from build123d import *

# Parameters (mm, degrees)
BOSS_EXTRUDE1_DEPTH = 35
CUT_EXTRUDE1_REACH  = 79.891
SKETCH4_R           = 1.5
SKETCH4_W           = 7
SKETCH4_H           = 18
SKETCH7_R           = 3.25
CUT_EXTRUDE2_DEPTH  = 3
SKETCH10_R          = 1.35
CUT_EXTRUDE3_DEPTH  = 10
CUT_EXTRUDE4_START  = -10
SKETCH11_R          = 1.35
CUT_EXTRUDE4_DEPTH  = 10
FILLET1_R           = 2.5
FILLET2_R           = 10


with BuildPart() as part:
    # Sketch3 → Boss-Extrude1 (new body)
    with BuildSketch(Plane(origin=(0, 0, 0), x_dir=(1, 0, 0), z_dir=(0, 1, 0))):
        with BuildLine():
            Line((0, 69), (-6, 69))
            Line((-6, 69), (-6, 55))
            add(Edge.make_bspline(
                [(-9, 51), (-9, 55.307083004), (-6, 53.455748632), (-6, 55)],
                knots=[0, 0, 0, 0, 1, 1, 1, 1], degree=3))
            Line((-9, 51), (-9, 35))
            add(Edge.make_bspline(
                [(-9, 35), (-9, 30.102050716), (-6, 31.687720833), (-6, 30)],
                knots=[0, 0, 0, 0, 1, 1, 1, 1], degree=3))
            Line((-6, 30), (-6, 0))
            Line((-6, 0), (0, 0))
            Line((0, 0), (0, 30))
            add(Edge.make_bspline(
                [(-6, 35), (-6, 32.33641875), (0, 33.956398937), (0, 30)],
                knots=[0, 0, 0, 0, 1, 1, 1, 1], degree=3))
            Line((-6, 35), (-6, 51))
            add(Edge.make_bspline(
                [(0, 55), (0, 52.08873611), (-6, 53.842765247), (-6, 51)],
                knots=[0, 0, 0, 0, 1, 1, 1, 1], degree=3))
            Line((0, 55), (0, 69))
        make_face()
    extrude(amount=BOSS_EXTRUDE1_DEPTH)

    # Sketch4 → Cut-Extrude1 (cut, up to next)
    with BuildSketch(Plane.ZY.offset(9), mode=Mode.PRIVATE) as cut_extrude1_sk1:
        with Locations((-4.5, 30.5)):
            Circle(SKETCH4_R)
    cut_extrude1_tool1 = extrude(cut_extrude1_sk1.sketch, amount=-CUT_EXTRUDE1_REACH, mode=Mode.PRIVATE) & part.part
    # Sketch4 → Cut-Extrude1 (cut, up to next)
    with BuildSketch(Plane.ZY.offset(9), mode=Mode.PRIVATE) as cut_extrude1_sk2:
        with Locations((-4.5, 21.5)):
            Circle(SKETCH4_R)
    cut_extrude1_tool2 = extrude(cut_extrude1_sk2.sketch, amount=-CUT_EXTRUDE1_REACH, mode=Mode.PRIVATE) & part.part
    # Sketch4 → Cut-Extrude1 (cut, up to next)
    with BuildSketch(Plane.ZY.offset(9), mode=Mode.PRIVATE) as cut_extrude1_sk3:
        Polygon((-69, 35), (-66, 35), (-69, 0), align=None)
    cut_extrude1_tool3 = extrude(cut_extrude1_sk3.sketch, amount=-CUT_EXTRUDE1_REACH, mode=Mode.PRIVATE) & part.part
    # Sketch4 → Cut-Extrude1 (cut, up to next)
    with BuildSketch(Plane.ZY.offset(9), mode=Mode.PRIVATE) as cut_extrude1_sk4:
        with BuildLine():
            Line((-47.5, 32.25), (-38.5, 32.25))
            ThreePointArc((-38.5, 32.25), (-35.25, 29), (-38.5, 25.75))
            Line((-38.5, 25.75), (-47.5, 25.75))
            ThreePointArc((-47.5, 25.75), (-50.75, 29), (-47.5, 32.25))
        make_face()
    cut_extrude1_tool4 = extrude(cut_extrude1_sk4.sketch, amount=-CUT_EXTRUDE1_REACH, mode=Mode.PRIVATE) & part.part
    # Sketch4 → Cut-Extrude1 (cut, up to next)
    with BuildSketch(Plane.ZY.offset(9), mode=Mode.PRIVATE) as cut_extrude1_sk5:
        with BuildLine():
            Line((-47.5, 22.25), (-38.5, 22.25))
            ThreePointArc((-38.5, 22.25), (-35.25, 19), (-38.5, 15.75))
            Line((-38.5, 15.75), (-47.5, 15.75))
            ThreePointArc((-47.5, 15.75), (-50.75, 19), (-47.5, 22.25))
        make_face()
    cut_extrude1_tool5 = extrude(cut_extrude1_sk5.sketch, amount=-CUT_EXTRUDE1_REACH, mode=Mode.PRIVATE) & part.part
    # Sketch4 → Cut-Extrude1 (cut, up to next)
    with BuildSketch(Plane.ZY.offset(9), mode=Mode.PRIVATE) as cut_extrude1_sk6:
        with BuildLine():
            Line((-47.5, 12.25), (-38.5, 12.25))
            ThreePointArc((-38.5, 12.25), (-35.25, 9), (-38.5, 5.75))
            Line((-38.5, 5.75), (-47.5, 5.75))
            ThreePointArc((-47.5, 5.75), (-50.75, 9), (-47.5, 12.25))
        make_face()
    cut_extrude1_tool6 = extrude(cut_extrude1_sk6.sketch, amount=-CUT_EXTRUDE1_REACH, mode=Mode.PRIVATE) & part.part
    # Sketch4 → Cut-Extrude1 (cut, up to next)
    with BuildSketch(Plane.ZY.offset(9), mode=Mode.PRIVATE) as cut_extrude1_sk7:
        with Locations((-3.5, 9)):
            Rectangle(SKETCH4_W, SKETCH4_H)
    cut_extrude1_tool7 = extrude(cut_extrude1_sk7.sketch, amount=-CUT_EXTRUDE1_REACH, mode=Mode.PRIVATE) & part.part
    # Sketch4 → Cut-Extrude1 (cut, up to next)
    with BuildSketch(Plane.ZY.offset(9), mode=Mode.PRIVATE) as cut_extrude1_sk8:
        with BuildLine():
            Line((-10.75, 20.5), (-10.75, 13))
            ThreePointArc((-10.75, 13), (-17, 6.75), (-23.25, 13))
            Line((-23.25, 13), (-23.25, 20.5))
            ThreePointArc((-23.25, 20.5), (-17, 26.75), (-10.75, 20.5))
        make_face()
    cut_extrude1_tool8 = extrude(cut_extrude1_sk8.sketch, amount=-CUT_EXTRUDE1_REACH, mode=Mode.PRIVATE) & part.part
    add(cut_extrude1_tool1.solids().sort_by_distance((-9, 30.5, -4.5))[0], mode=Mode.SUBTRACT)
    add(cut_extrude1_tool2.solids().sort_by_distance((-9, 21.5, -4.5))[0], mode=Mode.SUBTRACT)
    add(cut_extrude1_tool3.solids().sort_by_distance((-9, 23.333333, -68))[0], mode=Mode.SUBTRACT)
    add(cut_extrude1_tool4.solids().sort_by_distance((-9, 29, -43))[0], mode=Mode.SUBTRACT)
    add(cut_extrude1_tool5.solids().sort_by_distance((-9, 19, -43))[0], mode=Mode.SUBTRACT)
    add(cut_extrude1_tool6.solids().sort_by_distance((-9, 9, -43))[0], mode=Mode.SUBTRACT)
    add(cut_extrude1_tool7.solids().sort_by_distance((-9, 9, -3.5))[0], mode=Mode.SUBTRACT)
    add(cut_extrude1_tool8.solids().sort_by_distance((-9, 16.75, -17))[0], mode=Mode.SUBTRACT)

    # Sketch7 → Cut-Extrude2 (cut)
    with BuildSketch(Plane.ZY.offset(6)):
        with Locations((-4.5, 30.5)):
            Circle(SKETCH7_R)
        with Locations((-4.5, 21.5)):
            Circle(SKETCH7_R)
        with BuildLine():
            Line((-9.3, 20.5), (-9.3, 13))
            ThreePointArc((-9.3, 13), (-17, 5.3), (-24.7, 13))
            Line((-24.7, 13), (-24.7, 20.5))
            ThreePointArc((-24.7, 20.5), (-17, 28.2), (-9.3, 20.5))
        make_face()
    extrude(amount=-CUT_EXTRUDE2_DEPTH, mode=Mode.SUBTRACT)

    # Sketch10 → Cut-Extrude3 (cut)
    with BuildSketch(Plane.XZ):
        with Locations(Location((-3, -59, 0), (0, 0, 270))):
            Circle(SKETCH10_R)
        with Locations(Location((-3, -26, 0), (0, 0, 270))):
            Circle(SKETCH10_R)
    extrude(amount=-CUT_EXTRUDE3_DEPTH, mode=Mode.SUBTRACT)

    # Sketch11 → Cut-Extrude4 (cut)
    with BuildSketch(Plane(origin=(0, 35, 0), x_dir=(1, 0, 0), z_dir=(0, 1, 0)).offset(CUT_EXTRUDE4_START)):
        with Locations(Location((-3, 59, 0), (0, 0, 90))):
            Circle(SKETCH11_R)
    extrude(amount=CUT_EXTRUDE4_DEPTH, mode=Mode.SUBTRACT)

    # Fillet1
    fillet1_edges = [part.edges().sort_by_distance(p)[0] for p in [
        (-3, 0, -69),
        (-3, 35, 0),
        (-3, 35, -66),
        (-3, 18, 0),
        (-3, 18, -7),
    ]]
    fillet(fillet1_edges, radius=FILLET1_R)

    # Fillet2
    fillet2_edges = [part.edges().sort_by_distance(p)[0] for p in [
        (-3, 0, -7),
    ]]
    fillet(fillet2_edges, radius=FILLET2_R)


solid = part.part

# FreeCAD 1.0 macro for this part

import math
import FreeCAD as App
import Part
import Sketcher

V = App.Vector


def edges_at(feature, points):
    """Names of the edges that pass closest to the given points."""
    edges = feature.Shape.Edges
    near = lambda p: min(range(len(edges)), key=lambda i: edges[i].distToShape(Part.Vertex(*p))[0])
    return sorted({f"Edge{near(p) + 1}" for p in points})

doc = App.newDocument("Part")
body = doc.addObject("PartDesign::Body", "Body")

sketch1 = doc.addObject("Sketcher::SketchObject", "Sketch")
body.addObject(sketch1)
sketch1.AttachmentSupport = (doc.XZ_Plane, [""])
sketch1.MapMode = "FlatFace"
sketch1.addGeometry(Part.LineSegment(V(0, -69, 0), V(-6, -69, 0)), False)
sketch1.addGeometry(Part.LineSegment(V(-6, -69, 0), V(-6, -55, 0)), False)
sketch1.addGeometry(Part.BSplineCurve([V(-9, -51, 0), V(-9, -55.307083, 0), V(-6, -53.455749, 0), V(-6, -55, 0)], [4, 4], [0, 1], False, 3, [1, 1, 1, 1], False), False)
sketch1.addGeometry(Part.LineSegment(V(-9, -51, 0), V(-9, -35, 0)), False)
sketch1.addGeometry(Part.BSplineCurve([V(-9, -35, 0), V(-9, -30.102051, 0), V(-6, -31.687721, 0), V(-6, -30, 0)], [4, 4], [0, 1], False, 3, [1, 1, 1, 1], False), False)
sketch1.addGeometry(Part.LineSegment(V(-6, -30, 0), V(-6, 0, 0)), False)
sketch1.addGeometry(Part.LineSegment(V(-6, 0, 0), V(0, 0, 0)), False)
sketch1.addGeometry(Part.LineSegment(V(0, 0, 0), V(0, -30, 0)), False)
sketch1.addGeometry(Part.BSplineCurve([V(-6, -35, 0), V(-6, -32.336419, 0), V(0, -33.956399, 0), V(0, -30, 0)], [4, 4], [0, 1], False, 3, [1, 1, 1, 1], False), False)
sketch1.addGeometry(Part.LineSegment(V(-6, -35, 0), V(-6, -51, 0)), False)
sketch1.addGeometry(Part.BSplineCurve([V(0, -55, 0), V(0, -52.088736, 0), V(-6, -53.842765, 0), V(-6, -51, 0)], [4, 4], [0, 1], False, 3, [1, 1, 1, 1], False), False)
sketch1.addGeometry(Part.LineSegment(V(0, -55, 0), V(0, -69, 0)), False)
sketch1.addConstraint(Sketcher.Constraint("Block", 2))
sketch1.addConstraint(Sketcher.Constraint("Block", 4))
sketch1.addConstraint(Sketcher.Constraint("Block", 8))
sketch1.addConstraint(Sketcher.Constraint("Block", 10))
sketch1.addConstraint(Sketcher.Constraint("Coincident", 0, 2, 1, 1))
sketch1.addConstraint(Sketcher.Constraint("Coincident", 1, 2, 2, 2))
sketch1.addConstraint(Sketcher.Constraint("Coincident", 2, 1, 3, 1))
sketch1.addConstraint(Sketcher.Constraint("Coincident", 3, 2, 4, 1))
sketch1.addConstraint(Sketcher.Constraint("Coincident", 4, 2, 5, 1))
sketch1.addConstraint(Sketcher.Constraint("Coincident", 5, 2, 6, 1))
sketch1.addConstraint(Sketcher.Constraint("Coincident", 6, 2, 7, 1))
sketch1.addConstraint(Sketcher.Constraint("Coincident", 7, 2, 8, 2))
sketch1.addConstraint(Sketcher.Constraint("Coincident", 8, 1, 9, 1))
sketch1.addConstraint(Sketcher.Constraint("Coincident", 9, 2, 10, 2))
sketch1.addConstraint(Sketcher.Constraint("Coincident", 10, 1, 11, 1))
sketch1.addConstraint(Sketcher.Constraint("Coincident", 11, 2, 0, 1))
sketch1.addConstraint(Sketcher.Constraint("Horizontal", 0))
sketch1.addConstraint(Sketcher.Constraint("Vertical", 1))
sketch1.addConstraint(Sketcher.Constraint("Vertical", 5))
sketch1.addConstraint(Sketcher.Constraint("Horizontal", 6))
sketch1.addConstraint(Sketcher.Constraint("Vertical", 7))
sketch1.addConstraint(Sketcher.Constraint("Vertical", 11))
sketch1.addConstraint(Sketcher.Constraint("PointOnObject", 5, 2, -1))
sketch1.addConstraint(Sketcher.Constraint("DistanceY", 1, 1, 1, 2, 14.0))
pad1 = doc.addObject("PartDesign::Pad", "Pad")
body.addObject(pad1)
pad1.Profile = sketch1
pad1.Length = 35
pad1.Reversed = True

sketch2 = doc.addObject("Sketcher::SketchObject", "Sketch001")
body.addObject(sketch2)
sketch2.AttachmentSupport = (doc.YZ_Plane, [""])
sketch2.MapMode = "FlatFace"
sketch2.AttachmentOffset = App.Placement(V(0, 0, -9), App.Rotation())
sketch2.addGeometry(Part.Circle(V(30.5, -4.5, 0), V(0, 0, 1), 1.5), False)
sketch2.addConstraint(Sketcher.Constraint("Diameter", 0, 3.0))
sketch2.addConstraint(Sketcher.Constraint("DistanceX", -1, 1, 0, 3, 30.5))
sketch2.addConstraint(Sketcher.Constraint("DistanceY", 0, 3, -1, 1, 4.5))
pocket1 = doc.addObject("PartDesign::Pocket", "Pocket")
body.addObject(pocket1)
pocket1.Profile = sketch2
pocket1.Length = 9
pocket1.Reversed = True

sketch3 = doc.addObject("Sketcher::SketchObject", "Sketch002")
body.addObject(sketch3)
sketch3.AttachmentSupport = (doc.YZ_Plane, [""])
sketch3.MapMode = "FlatFace"
sketch3.AttachmentOffset = App.Placement(V(0, 0, -9), App.Rotation())
sketch3.addGeometry(Part.Circle(V(21.5, -4.5, 0), V(0, 0, 1), 1.5), False)
sketch3.addConstraint(Sketcher.Constraint("Diameter", 0, 3.0))
sketch3.addConstraint(Sketcher.Constraint("DistanceX", -1, 1, 0, 3, 21.5))
sketch3.addConstraint(Sketcher.Constraint("DistanceY", 0, 3, -1, 1, 4.5))
pocket2 = doc.addObject("PartDesign::Pocket", "Pocket001")
body.addObject(pocket2)
pocket2.Profile = sketch3
pocket2.Length = 9
pocket2.Reversed = True

sketch4 = doc.addObject("Sketcher::SketchObject", "Sketch003")
body.addObject(sketch4)
sketch4.AttachmentSupport = (doc.YZ_Plane, [""])
sketch4.MapMode = "FlatFace"
sketch4.AttachmentOffset = App.Placement(V(0, 0, -9), App.Rotation())
sketch4.addGeometry(Part.LineSegment(V(35, -66, 0), V(35, -69, 0)), False)
sketch4.addGeometry(Part.LineSegment(V(35, -69, 0), V(0, -69, 0)), False)
sketch4.addGeometry(Part.LineSegment(V(0, -69, 0), V(35, -66, 0)), False)
sketch4.addConstraint(Sketcher.Constraint("Coincident", 0, 2, 1, 1))
sketch4.addConstraint(Sketcher.Constraint("Coincident", 1, 2, 2, 1))
sketch4.addConstraint(Sketcher.Constraint("Coincident", 2, 2, 0, 1))
sketch4.addConstraint(Sketcher.Constraint("Vertical", 0))
sketch4.addConstraint(Sketcher.Constraint("Horizontal", 1))
sketch4.addConstraint(Sketcher.Constraint("PointOnObject", 1, 2, -2))
sketch4.addConstraint(Sketcher.Constraint("DistanceX", 1, 2, 1, 1, 35.0))
sketch4.addConstraint(Sketcher.Constraint("DistanceY", 0, 2, 0, 1, 3.0))
sketch4.addConstraint(Sketcher.Constraint("DistanceY", 0, 2, -1, 1, 69.0))
pocket3 = doc.addObject("PartDesign::Pocket", "Pocket002")
body.addObject(pocket3)
pocket3.Profile = sketch4
pocket3.Length = 9
pocket3.Reversed = True

sketch5 = doc.addObject("Sketcher::SketchObject", "Sketch004")
body.addObject(sketch5)
sketch5.AttachmentSupport = (doc.YZ_Plane, [""])
sketch5.MapMode = "FlatFace"
sketch5.AttachmentOffset = App.Placement(V(0, 0, -9), App.Rotation())
sketch5.addGeometry(Part.LineSegment(V(32.25, -38.5, 0), V(32.25, -47.5, 0)), False)
sketch5.addGeometry(Part.ArcOfCircle(Part.Circle(V(29, -47.5, 0), V(0, 0, 1), 3.25), math.radians(180), math.radians(360)), False)
sketch5.addGeometry(Part.LineSegment(V(25.75, -47.5, 0), V(25.75, -38.5, 0)), False)
sketch5.addGeometry(Part.ArcOfCircle(Part.Circle(V(29, -38.5, 0), V(0, 0, 1), 3.25), math.radians(0), math.radians(180)), False)
sketch5.addConstraint(Sketcher.Constraint("Tangent", 0, 2, 1, 2))
sketch5.addConstraint(Sketcher.Constraint("Tangent", 1, 1, 2, 1))
sketch5.addConstraint(Sketcher.Constraint("Tangent", 2, 2, 3, 2))
sketch5.addConstraint(Sketcher.Constraint("Tangent", 3, 1, 0, 1))
sketch5.addConstraint(Sketcher.Constraint("Vertical", 0))
sketch5.addConstraint(Sketcher.Constraint("Vertical", 2))
sketch5.addConstraint(Sketcher.Constraint("DistanceY", 0, 2, 0, 1, 9.0))
sketch5.addConstraint(Sketcher.Constraint("Radius", 1, 3.25))
sketch5.addConstraint(Sketcher.Constraint("DistanceX", -1, 1, 1, 3, 29.0))
sketch5.addConstraint(Sketcher.Constraint("DistanceY", 1, 3, -1, 1, 47.5))
pocket4 = doc.addObject("PartDesign::Pocket", "Pocket003")
body.addObject(pocket4)
pocket4.Profile = sketch5
pocket4.Type = "UpToFirst"
pocket4.Reversed = True

sketch6 = doc.addObject("Sketcher::SketchObject", "Sketch005")
body.addObject(sketch6)
sketch6.AttachmentSupport = (doc.YZ_Plane, [""])
sketch6.MapMode = "FlatFace"
sketch6.AttachmentOffset = App.Placement(V(0, 0, -9), App.Rotation())
sketch6.addGeometry(Part.LineSegment(V(22.25, -38.5, 0), V(22.25, -47.5, 0)), False)
sketch6.addGeometry(Part.ArcOfCircle(Part.Circle(V(19, -47.5, 0), V(0, 0, 1), 3.25), math.radians(180), math.radians(360)), False)
sketch6.addGeometry(Part.LineSegment(V(15.75, -47.5, 0), V(15.75, -38.5, 0)), False)
sketch6.addGeometry(Part.ArcOfCircle(Part.Circle(V(19, -38.5, 0), V(0, 0, 1), 3.25), math.radians(0), math.radians(180)), False)
sketch6.addConstraint(Sketcher.Constraint("Tangent", 0, 2, 1, 2))
sketch6.addConstraint(Sketcher.Constraint("Tangent", 1, 1, 2, 1))
sketch6.addConstraint(Sketcher.Constraint("Tangent", 2, 2, 3, 2))
sketch6.addConstraint(Sketcher.Constraint("Tangent", 3, 1, 0, 1))
sketch6.addConstraint(Sketcher.Constraint("Vertical", 0))
sketch6.addConstraint(Sketcher.Constraint("Vertical", 2))
sketch6.addConstraint(Sketcher.Constraint("DistanceY", 0, 2, 0, 1, 9.0))
sketch6.addConstraint(Sketcher.Constraint("Radius", 1, 3.25))
sketch6.addConstraint(Sketcher.Constraint("DistanceX", -1, 1, 1, 3, 19.0))
sketch6.addConstraint(Sketcher.Constraint("DistanceY", 1, 3, -1, 1, 47.5))
pocket5 = doc.addObject("PartDesign::Pocket", "Pocket004")
body.addObject(pocket5)
pocket5.Profile = sketch6
pocket5.Type = "UpToFirst"
pocket5.Reversed = True

sketch7 = doc.addObject("Sketcher::SketchObject", "Sketch006")
body.addObject(sketch7)
sketch7.AttachmentSupport = (doc.YZ_Plane, [""])
sketch7.MapMode = "FlatFace"
sketch7.AttachmentOffset = App.Placement(V(0, 0, -9), App.Rotation())
sketch7.addGeometry(Part.LineSegment(V(12.25, -38.5, 0), V(12.25, -47.5, 0)), False)
sketch7.addGeometry(Part.ArcOfCircle(Part.Circle(V(9, -47.5, 0), V(0, 0, 1), 3.25), math.radians(180), math.radians(360)), False)
sketch7.addGeometry(Part.LineSegment(V(5.75, -47.5, 0), V(5.75, -38.5, 0)), False)
sketch7.addGeometry(Part.ArcOfCircle(Part.Circle(V(9, -38.5, 0), V(0, 0, 1), 3.25), math.radians(0), math.radians(180)), False)
sketch7.addConstraint(Sketcher.Constraint("Tangent", 0, 2, 1, 2))
sketch7.addConstraint(Sketcher.Constraint("Tangent", 1, 1, 2, 1))
sketch7.addConstraint(Sketcher.Constraint("Tangent", 2, 2, 3, 2))
sketch7.addConstraint(Sketcher.Constraint("Tangent", 3, 1, 0, 1))
sketch7.addConstraint(Sketcher.Constraint("Vertical", 0))
sketch7.addConstraint(Sketcher.Constraint("Vertical", 2))
sketch7.addConstraint(Sketcher.Constraint("DistanceY", 0, 2, 0, 1, 9.0))
sketch7.addConstraint(Sketcher.Constraint("Radius", 1, 3.25))
sketch7.addConstraint(Sketcher.Constraint("DistanceX", -1, 1, 1, 3, 9.0))
sketch7.addConstraint(Sketcher.Constraint("DistanceY", 1, 3, -1, 1, 47.5))
pocket6 = doc.addObject("PartDesign::Pocket", "Pocket005")
body.addObject(pocket6)
pocket6.Profile = sketch7
pocket6.Type = "UpToFirst"
pocket6.Reversed = True

sketch8 = doc.addObject("Sketcher::SketchObject", "Sketch007")
body.addObject(sketch8)
sketch8.AttachmentSupport = (doc.YZ_Plane, [""])
sketch8.MapMode = "FlatFace"
sketch8.AttachmentOffset = App.Placement(V(0, 0, -9), App.Rotation())
sketch8.addGeometry(Part.LineSegment(V(18, -7, 0), V(0, -7, 0)), False)
sketch8.addGeometry(Part.LineSegment(V(0, -7, 0), V(0, 0, 0)), False)
sketch8.addGeometry(Part.LineSegment(V(0, 0, 0), V(18, 0, 0)), False)
sketch8.addGeometry(Part.LineSegment(V(18, 0, 0), V(18, -7, 0)), False)
sketch8.addConstraint(Sketcher.Constraint("Coincident", 0, 2, 1, 1))
sketch8.addConstraint(Sketcher.Constraint("Coincident", 1, 2, 2, 1))
sketch8.addConstraint(Sketcher.Constraint("Coincident", 2, 2, 3, 1))
sketch8.addConstraint(Sketcher.Constraint("Coincident", 3, 2, 0, 1))
sketch8.addConstraint(Sketcher.Constraint("Horizontal", 0))
sketch8.addConstraint(Sketcher.Constraint("Vertical", 1))
sketch8.addConstraint(Sketcher.Constraint("Horizontal", 2))
sketch8.addConstraint(Sketcher.Constraint("Vertical", 3))
sketch8.addConstraint(Sketcher.Constraint("Coincident", 1, 2, -1, 1))
sketch8.addConstraint(Sketcher.Constraint("DistanceX", 0, 2, 0, 1, 18.0))
sketch8.addConstraint(Sketcher.Constraint("DistanceY", 1, 1, 1, 2, 7.0))
pocket7 = doc.addObject("PartDesign::Pocket", "Pocket006")
body.addObject(pocket7)
pocket7.Profile = sketch8
pocket7.Length = 9
pocket7.Reversed = True

sketch9 = doc.addObject("Sketcher::SketchObject", "Sketch008")
body.addObject(sketch9)
sketch9.AttachmentSupport = (doc.YZ_Plane, [""])
sketch9.MapMode = "FlatFace"
sketch9.AttachmentOffset = App.Placement(V(0, 0, -9), App.Rotation())
sketch9.addGeometry(Part.LineSegment(V(13, -10.75, 0), V(20.5, -10.75, 0)), False)
sketch9.addGeometry(Part.ArcOfCircle(Part.Circle(V(20.5, -17, 0), V(0, 0, 1), 6.25), math.radians(-90), math.radians(90)), False)
sketch9.addGeometry(Part.LineSegment(V(20.5, -23.25, 0), V(13, -23.25, 0)), False)
sketch9.addGeometry(Part.ArcOfCircle(Part.Circle(V(13, -17, 0), V(0, 0, 1), 6.25), math.radians(90), math.radians(270)), False)
sketch9.addConstraint(Sketcher.Constraint("Tangent", 0, 2, 1, 2))
sketch9.addConstraint(Sketcher.Constraint("Tangent", 1, 1, 2, 1))
sketch9.addConstraint(Sketcher.Constraint("Tangent", 2, 2, 3, 2))
sketch9.addConstraint(Sketcher.Constraint("Tangent", 3, 1, 0, 1))
sketch9.addConstraint(Sketcher.Constraint("Horizontal", 0))
sketch9.addConstraint(Sketcher.Constraint("Horizontal", 2))
sketch9.addConstraint(Sketcher.Constraint("Radius", 1, 6.25))
sketch9.addConstraint(Sketcher.Constraint("DistanceX", 0, 1, 0, 2, 7.5))
sketch9.addConstraint(Sketcher.Constraint("DistanceY", 1, 3, -1, 1, 17.0))
sketch9.addConstraint(Sketcher.Constraint("DistanceX", -1, 1, 3, 3, 13.0))
pocket8 = doc.addObject("PartDesign::Pocket", "Pocket007")
body.addObject(pocket8)
pocket8.Profile = sketch9
pocket8.Length = 9
pocket8.Reversed = True

sketch10 = doc.addObject("Sketcher::SketchObject", "Sketch009")
body.addObject(sketch10)
sketch10.AttachmentSupport = (doc.YZ_Plane, [""])
sketch10.MapMode = "FlatFace"
sketch10.AttachmentOffset = App.Placement(V(0, 0, -6), App.Rotation())
sketch10.addGeometry(Part.Circle(V(30.5, -4.5, 0), V(0, 0, 1), 3.25), False)
sketch10.addGeometry(Part.Circle(V(21.5, -4.5, 0), V(0, 0, 1), 3.25), False)
sketch10.addGeometry(Part.LineSegment(V(13, -9.3, 0), V(20.5, -9.3, 0)), False)
sketch10.addGeometry(Part.ArcOfCircle(Part.Circle(V(20.5, -17, 0), V(0, 0, 1), 7.7), math.radians(-90), math.radians(90)), False)
sketch10.addGeometry(Part.LineSegment(V(20.5, -24.7, 0), V(13, -24.7, 0)), False)
sketch10.addGeometry(Part.ArcOfCircle(Part.Circle(V(13, -17, 0), V(0, 0, 1), 7.7), math.radians(90), math.radians(270)), False)
sketch10.addConstraint(Sketcher.Constraint("Tangent", 2, 2, 3, 2))
sketch10.addConstraint(Sketcher.Constraint("Tangent", 3, 1, 4, 1))
sketch10.addConstraint(Sketcher.Constraint("Tangent", 4, 2, 5, 2))
sketch10.addConstraint(Sketcher.Constraint("Tangent", 5, 1, 2, 1))
sketch10.addConstraint(Sketcher.Constraint("Horizontal", 2))
sketch10.addConstraint(Sketcher.Constraint("Horizontal", 4))
sketch10.addConstraint(Sketcher.Constraint("Equal", 0, 1))
sketch10.addConstraint(Sketcher.Constraint("Horizontal", 0, 3, 1, 3))
sketch10.addConstraint(Sketcher.Constraint("Diameter", 0, 6.5))
sketch10.addConstraint(Sketcher.Constraint("Radius", 3, 7.7))
sketch10.addConstraint(Sketcher.Constraint("DistanceX", 2, 1, 2, 2, 7.5))
sketch10.addConstraint(Sketcher.Constraint("DistanceY", 3, 3, -1, 1, 17.0))
sketch10.addConstraint(Sketcher.Constraint("DistanceX", -1, 1, 5, 3, 13.0))
sketch10.addConstraint(Sketcher.Constraint("DistanceX", 1, 3, 0, 3, 9.0))
sketch10.addConstraint(Sketcher.Constraint("DistanceX", 3, 3, 1, 3, 1.0))
sketch10.addConstraint(Sketcher.Constraint("DistanceY", 0, 3, -1, 1, 4.5))
pocket9 = doc.addObject("PartDesign::Pocket", "Pocket008")
body.addObject(pocket9)
pocket9.Profile = sketch10
pocket9.Length = 3
pocket9.Reversed = True

sketch11 = doc.addObject("Sketcher::SketchObject", "Sketch010")
body.addObject(sketch11)
sketch11.AttachmentSupport = (doc.XZ_Plane, [""])
sketch11.MapMode = "FlatFace"
sketch11.addGeometry(Part.Circle(V(-3, -59, 0), V(0, 0, 1), 1.35), False)
sketch11.addGeometry(Part.Circle(V(-3, -26, 0), V(0, 0, 1), 1.35), False)
sketch11.addConstraint(Sketcher.Constraint("Equal", 0, 1))
sketch11.addConstraint(Sketcher.Constraint("Vertical", 0, 3, 1, 3))
sketch11.addConstraint(Sketcher.Constraint("Diameter", 0, 2.7))
sketch11.addConstraint(Sketcher.Constraint("DistanceX", 0, 3, -1, 1, 3.0))
sketch11.addConstraint(Sketcher.Constraint("DistanceY", 0, 3, -1, 1, 59.0))
sketch11.addConstraint(Sketcher.Constraint("DistanceY", 1, 3, -1, 1, 26.0))
pocket10 = doc.addObject("PartDesign::Pocket", "Pocket009")
body.addObject(pocket10)
pocket10.Profile = sketch11
pocket10.Length = 10

sketch12 = doc.addObject("Sketcher::SketchObject", "Sketch011")
body.addObject(sketch12)
sketch12.AttachmentSupport = (doc.XZ_Plane, [""])
sketch12.MapMode = "FlatFace"
sketch12.AttachmentOffset = App.Placement(V(0, 0, -25), App.Rotation())
sketch12.addGeometry(Part.Circle(V(-3, -59, 0), V(0, 0, 1), 1.35), False)
sketch12.addConstraint(Sketcher.Constraint("Diameter", 0, 2.7))
sketch12.addConstraint(Sketcher.Constraint("DistanceX", 0, 3, -1, 1, 3.0))
sketch12.addConstraint(Sketcher.Constraint("DistanceY", 0, 3, -1, 1, 59.0))
pocket11 = doc.addObject("PartDesign::Pocket", "Pocket010")
body.addObject(pocket11)
pocket11.Profile = sketch12
pocket11.Length = 10
doc.recompute()

fillet = doc.addObject("PartDesign::Fillet", "Fillet")
body.addObject(fillet)
fillet.Base = (pocket11, edges_at(pocket11, [
    (-3, 0, -69),
    (-3, 35, 0),
    (-3, 35, -66),
    (-3, 18, 0),
    (-3, 18, -7),
]))
fillet.Radius = 2.5
doc.recompute()

fillet2 = doc.addObject("PartDesign::Fillet", "Fillet001")
body.addObject(fillet2)
fillet2.Base = (fillet, edges_at(fillet, [(-3, 0, -7)]))
fillet2.Radius = 10

doc.recompute()
